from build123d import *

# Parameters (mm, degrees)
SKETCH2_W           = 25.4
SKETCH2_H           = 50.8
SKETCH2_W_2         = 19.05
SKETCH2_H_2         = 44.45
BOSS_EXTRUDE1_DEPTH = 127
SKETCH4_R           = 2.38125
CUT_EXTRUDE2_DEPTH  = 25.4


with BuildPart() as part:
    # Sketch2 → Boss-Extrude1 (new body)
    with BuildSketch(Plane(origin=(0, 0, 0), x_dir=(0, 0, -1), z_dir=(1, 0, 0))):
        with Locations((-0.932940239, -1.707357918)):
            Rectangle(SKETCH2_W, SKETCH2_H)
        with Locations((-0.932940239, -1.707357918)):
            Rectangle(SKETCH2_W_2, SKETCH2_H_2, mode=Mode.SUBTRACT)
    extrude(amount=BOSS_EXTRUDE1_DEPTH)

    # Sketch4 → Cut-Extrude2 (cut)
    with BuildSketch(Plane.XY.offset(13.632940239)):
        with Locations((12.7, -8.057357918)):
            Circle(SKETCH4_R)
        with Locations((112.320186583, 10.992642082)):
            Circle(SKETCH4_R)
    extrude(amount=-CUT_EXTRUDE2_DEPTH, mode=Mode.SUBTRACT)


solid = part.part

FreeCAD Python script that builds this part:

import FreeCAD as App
import Part
import Sketcher

V = App.Vector
Q = App.Units.Quantity

doc = App.newDocument("Part")
params = doc.addObject("Spreadsheet::Sheet", "Params")
for row, (alias, value) in enumerate([
    ("sketch1_width", "2 in"),
    ("sketch1_height", "1 in"),
    ("sketch1_width2", "1.75 in"),
    ("sketch1_height2", "0.75 in"),
    ("pad1_length", "5 in"),
    ("sketch2_diameter", "0.1875 in"),
    ("pocket1_length", "1 in"),
], start=1):
    params.set(f"A{row}", alias)
    params.set(f"B{row}", "=" + value)
    params.setAlias(f"B{row}", alias)

body = doc.addObject("PartDesign::Body", "Body")

# Sketch on YZ plane
sketch1 = body.newObject("Sketcher::SketchObject", "Sketch")
sketch1.AttachmentSupport = (doc.getObject("YZ_Plane"), [""])
sketch1.MapMode = "FlatFace"
sketch1.addGeometry([
    Part.LineSegment(V(23.692642, 13.63294, 0), V(-27.107358, 13.63294, 0)),  # 0
    Part.LineSegment(V(-27.107358, 13.63294, 0), V(-27.107358, -11.76706, 0)),  # 1
    Part.LineSegment(V(-27.107358, -11.76706, 0), V(23.692642, -11.76706, 0)),  # 2
    Part.LineSegment(V(23.692642, -11.76706, 0), V(23.692642, 13.63294, 0)),  # 3
    Part.LineSegment(V(-23.932358, -8.59206, 0), V(-23.932358, 10.45794, 0)),  # 4
    Part.LineSegment(V(-23.932358, 10.45794, 0), V(20.517642, 10.45794, 0)),  # 5
    Part.LineSegment(V(20.517642, 10.45794, 0), V(20.517642, -8.59206, 0)),  # 6
    Part.LineSegment(V(20.517642, -8.59206, 0), V(-23.932358, -8.59206, 0)),  # 7
], False)
sketch1.addConstraint([
    Sketcher.Constraint("Coincident", 0, 2, 1, 1),
    Sketcher.Constraint("Coincident", 1, 2, 2, 1),
    Sketcher.Constraint("Coincident", 2, 2, 3, 1),
    Sketcher.Constraint("Coincident", 3, 2, 0, 1),
    Sketcher.Constraint("Coincident", 4, 2, 5, 1),
    Sketcher.Constraint("Coincident", 5, 2, 6, 1),
    Sketcher.Constraint("Coincident", 6, 2, 7, 1),
    Sketcher.Constraint("Coincident", 7, 2, 4, 1),
    Sketcher.Constraint("Horizontal", 0),
    Sketcher.Constraint("Vertical", 1),
    Sketcher.Constraint("Horizontal", 2),
    Sketcher.Constraint("Vertical", 3),
    Sketcher.Constraint("Vertical", 4),
    Sketcher.Constraint("Horizontal", 5),
    Sketcher.Constraint("Vertical", 6),
    Sketcher.Constraint("Horizontal", 7),
    Sketcher.Constraint("DistanceX", 0, 2, 0, 1, Q("2 in")),
    Sketcher.Constraint("DistanceY", 1, 2, 1, 1, Q("1 in")),
    Sketcher.Constraint("DistanceX", 5, 1, 5, 2, Q("1.75 in")),
    Sketcher.Constraint("DistanceY", 4, 1, 4, 2, Q("0.75 in")),
    Sketcher.Constraint("DistanceX", 0, 2, 4, 2, Q("0.125 in")),
    Sketcher.Constraint("DistanceY", 4, 2, 0, 2, Q("0.125 in")),
    Sketcher.Constraint("DistanceY", -1, 1, 0, 2, Q("13.63294 mm")),
    Sketcher.Constraint("DistanceX", 0, 2, -1, 1, Q("27.107358 mm")),
])
sketch1.setExpression("Constraints[16]", "Params.sketch1_width")
sketch1.setExpression("Constraints[17]", "Params.sketch1_height")
sketch1.setExpression("Constraints[18]", "Params.sketch1_width2")
sketch1.setExpression("Constraints[19]", "Params.sketch1_height2")
pad1 = body.newObject("PartDesign::Pad", "Pad")
pad1.Profile = sketch1
pad1.setExpression("Length", "Params.pad1_length")

# Sketch on XY plane
sketch2 = body.newObject("Sketcher::SketchObject", "Sketch001")
sketch2.AttachmentSupport = (doc.getObject("XY_Plane"), [""])
sketch2.MapMode = "FlatFace"
sketch2.AttachmentOffset = App.Placement(V(0, 0, 13.63294), App.Rotation())
sketch2.addGeometry([
    Part.Circle(V(12.7, -8.057358, 0), V(0, 0, 1), 2.38125),
    Part.Circle(V(112.320187, 10.992642, 0), V(0, 0, 1), 2.38125),
], False)
sketch2.addConstraint([
    Sketcher.Constraint("Equal", 0, 1),
    Sketcher.Constraint("Diameter", 0, Q("0.1875 in")),
    Sketcher.Constraint("DistanceX", -1, 1, 0, 3, Q("0.5 in")),
    Sketcher.Constraint("DistanceY", 0, 3, 1, 3, Q("0.75 in")),
    Sketcher.Constraint("DistanceY", 0, 3, -1, 1, Q("8.057358 mm")),
    Sketcher.Constraint("DistanceX", -1, 1, 1, 3, Q("112.320187 mm")),
])
sketch2.setExpression("Constraints[1]", "Params.sketch2_diameter")
pocket1 = body.newObject("PartDesign::Pocket", "Pocket")
pocket1.Profile = sketch2
pocket1.setExpression("Length", "Params.pocket1_length")

doc.recompute()
